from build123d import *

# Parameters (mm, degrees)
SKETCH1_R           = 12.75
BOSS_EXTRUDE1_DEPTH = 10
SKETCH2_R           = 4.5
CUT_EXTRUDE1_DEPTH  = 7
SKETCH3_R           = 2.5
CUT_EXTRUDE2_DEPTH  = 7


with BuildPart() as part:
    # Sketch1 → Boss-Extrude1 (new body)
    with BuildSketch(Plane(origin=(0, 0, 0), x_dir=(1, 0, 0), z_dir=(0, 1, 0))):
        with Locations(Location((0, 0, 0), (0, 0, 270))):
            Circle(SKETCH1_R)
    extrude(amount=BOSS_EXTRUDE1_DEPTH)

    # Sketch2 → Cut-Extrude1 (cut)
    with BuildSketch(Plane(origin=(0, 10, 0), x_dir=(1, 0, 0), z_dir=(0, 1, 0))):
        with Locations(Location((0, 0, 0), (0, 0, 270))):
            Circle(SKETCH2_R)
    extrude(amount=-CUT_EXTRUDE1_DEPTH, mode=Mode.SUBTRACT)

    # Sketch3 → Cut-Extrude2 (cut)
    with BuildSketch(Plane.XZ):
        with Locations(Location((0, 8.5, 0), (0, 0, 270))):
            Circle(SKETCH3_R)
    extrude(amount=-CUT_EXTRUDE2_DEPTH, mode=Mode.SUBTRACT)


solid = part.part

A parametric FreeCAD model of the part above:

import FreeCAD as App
import Part
import Sketcher

V = App.Vector
Q = App.Units.Quantity

doc = App.newDocument("Part")
body = doc.addObject("PartDesign::Body", "Body")

# Sketch on XZ plane
sketch1 = body.newObject("Sketcher::SketchObject", "Sketch")
sketch1.AttachmentSupport = (doc.getObject("XZ_Plane"), [""])
sketch1.MapMode = "FlatFace"
sketch1.addGeometry(Part.Circle(V(0, 0, 0), V(0, 0, 1), 13), False)
sketch1.addConstraint([
    Sketcher.Constraint("Coincident", 0, 3, -1, 1),
    Sketcher.Constraint("Diameter", 0, Q("25.5 mm")),
])
pad1 = body.newObject("PartDesign::Pad", "Pad")
pad1.Profile = sketch1
pad1.Length = 10
pad1.Reversed = True

# Sketch on XZ plane
sketch2 = body.newObject("Sketcher::SketchObject", "Sketch001")
sketch2.AttachmentSupport = (doc.getObject("XZ_Plane"), [""])
sketch2.MapMode = "FlatFace"
sketch2.AttachmentOffset = App.Placement(V(0, 0, -10), App.Rotation())
sketch2.addGeometry(Part.Circle(V(0, 0, 0), V(0, 0, 1), 4.5), False)
sketch2.addConstraint([
    Sketcher.Constraint("Coincident", 0, 3, -1, 1),
    Sketcher.Constraint("Diameter", 0, Q("9 mm")),
])
pocket1 = body.newObject("PartDesign::Pocket", "Pocket")
pocket1.Profile = sketch2
pocket1.Length = 7
pocket1.Reversed = True

# Sketch on XZ plane
sketch3 = body.newObject("Sketcher::SketchObject", "Sketch002")
sketch3.AttachmentSupport = (doc.getObject("XZ_Plane"), [""])
sketch3.MapMode = "FlatFace"
sketch3.addGeometry(Part.Circle(V(0, 8.5, 0), V(0, 0, 1), 2.5), False)
sketch3.addConstraint([
    Sketcher.Constraint("PointOnObject", 0, 3, -2),
    Sketcher.Constraint("Diameter", 0, Q("5 mm")),
    Sketcher.Constraint("DistanceY", -1, 1, 0, 3, Q("8.5 mm")),
])
pocket2 = body.newObject("PartDesign::Pocket", "Pocket001")
pocket2.Profile = sketch3
pocket2.Length = 7

doc.recompute()
